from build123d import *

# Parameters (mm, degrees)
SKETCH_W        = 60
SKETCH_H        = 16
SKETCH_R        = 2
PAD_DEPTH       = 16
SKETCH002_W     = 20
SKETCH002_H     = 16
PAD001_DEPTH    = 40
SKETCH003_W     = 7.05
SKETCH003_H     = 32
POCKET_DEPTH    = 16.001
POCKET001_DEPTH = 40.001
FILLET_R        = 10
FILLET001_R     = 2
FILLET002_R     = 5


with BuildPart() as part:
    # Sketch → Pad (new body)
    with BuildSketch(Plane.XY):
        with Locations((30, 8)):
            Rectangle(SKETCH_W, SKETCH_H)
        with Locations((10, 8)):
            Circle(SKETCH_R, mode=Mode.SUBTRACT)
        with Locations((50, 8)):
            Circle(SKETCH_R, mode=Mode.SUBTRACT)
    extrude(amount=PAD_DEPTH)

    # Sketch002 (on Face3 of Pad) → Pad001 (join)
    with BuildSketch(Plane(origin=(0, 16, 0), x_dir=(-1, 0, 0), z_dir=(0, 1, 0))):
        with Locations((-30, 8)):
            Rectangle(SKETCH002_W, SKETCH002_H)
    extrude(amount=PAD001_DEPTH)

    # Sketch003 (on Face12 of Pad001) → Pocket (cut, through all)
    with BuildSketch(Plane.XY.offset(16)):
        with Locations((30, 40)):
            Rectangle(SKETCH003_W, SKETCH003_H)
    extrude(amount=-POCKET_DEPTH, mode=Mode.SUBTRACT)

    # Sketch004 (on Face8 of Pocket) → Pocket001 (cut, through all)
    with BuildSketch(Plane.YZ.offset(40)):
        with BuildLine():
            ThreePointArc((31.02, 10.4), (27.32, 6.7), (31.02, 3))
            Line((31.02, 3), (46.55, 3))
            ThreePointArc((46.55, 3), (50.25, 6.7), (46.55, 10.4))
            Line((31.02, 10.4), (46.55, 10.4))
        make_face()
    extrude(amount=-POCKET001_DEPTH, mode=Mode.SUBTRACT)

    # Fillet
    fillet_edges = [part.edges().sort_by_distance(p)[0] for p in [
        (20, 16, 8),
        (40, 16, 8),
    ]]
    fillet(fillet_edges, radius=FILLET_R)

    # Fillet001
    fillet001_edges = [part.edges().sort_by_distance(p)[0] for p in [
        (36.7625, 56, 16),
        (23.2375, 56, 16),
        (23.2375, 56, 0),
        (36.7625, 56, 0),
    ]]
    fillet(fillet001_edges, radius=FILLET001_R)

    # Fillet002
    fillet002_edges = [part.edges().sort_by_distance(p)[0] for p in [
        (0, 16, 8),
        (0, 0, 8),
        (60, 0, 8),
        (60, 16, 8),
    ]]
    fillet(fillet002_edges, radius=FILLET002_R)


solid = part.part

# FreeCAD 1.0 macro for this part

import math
import FreeCAD as App
import Part
import Sketcher


def edges_at(feature, points):
    """Names of the edges that pass closest to the given points."""
    edges = feature.Shape.Edges
    near = lambda p: min(range(len(edges)), key=lambda i: edges[i].distToShape(Part.Vertex(*p))[0])
    return sorted({f"Edge{near(p) + 1}" for p in points})

doc = App.newDocument("Part")
body = doc.addObject("PartDesign::Body", "Body")

# Sketch on XY plane
sketch1 = body.newObject("Sketcher::SketchObject", "Sketch")
sketch1.AttachmentSupport = (doc.getObject("XY_Plane"), [""])
sketch1.MapMode = "FlatFace"
sketch1.addGeometry(Part.LineSegment(App.Vector(0, 16, 0), App.Vector(0, 0, 0)), False)
sketch1.addGeometry(Part.LineSegment(App.Vector(0, 0, 0), App.Vector(60, 0, 0)), False)
sketch1.addGeometry(Part.LineSegment(App.Vector(60, 0, 0), App.Vector(60, 16, 0)), False)
sketch1.addGeometry(Part.LineSegment(App.Vector(60, 16, 0), App.Vector(0, 16, 0)), False)
sketch1.addGeometry(Part.Circle(App.Vector(10, 8, 0), App.Vector(0, 0, 1), 2), False)
sketch1.addGeometry(Part.Circle(App.Vector(50, 8, 0), App.Vector(0, 0, 1), 2), False)
sketch1.addConstraint(Sketcher.Constraint("Coincident", 0, 2, 1, 1))
sketch1.addConstraint(Sketcher.Constraint("Coincident", 1, 2, 2, 1))
sketch1.addConstraint(Sketcher.Constraint("Coincident", 2, 2, 3, 1))
sketch1.addConstraint(Sketcher.Constraint("Coincident", 3, 2, 0, 1))
sketch1.addConstraint(Sketcher.Constraint("Vertical", 0))
sketch1.addConstraint(Sketcher.Constraint("Horizontal", 1))
sketch1.addConstraint(Sketcher.Constraint("Vertical", 2))
sketch1.addConstraint(Sketcher.Constraint("Horizontal", 3))
sketch1.addConstraint(Sketcher.Constraint("Coincident", 0, 2, -1, 1))
sketch1.addConstraint(Sketcher.Constraint("Equal", 4, 5))
sketch1.addConstraint(Sketcher.Constraint("Horizontal", 4, 3, 5, 3))
sketch1.addConstraint(Sketcher.Constraint("Diameter", 4, 4.0))
sketch1.addConstraint(Sketcher.Constraint("DistanceX", 1, 1, 1, 2, 60.0))
sketch1.addConstraint(Sketcher.Constraint("DistanceY", 0, 2, 0, 1, 16.0))
sketch1.addConstraint(Sketcher.Constraint("DistanceX", -1, 1, 4, 3, 10.0))
sketch1.addConstraint(Sketcher.Constraint("DistanceY", -1, 1, 4, 3, 8.0))
sketch1.addConstraint(Sketcher.Constraint("DistanceX", -1, 1, 5, 3, 50.0))
pad1 = body.newObject("PartDesign::Pad", "Pad")
pad1.Profile = sketch1
pad1.Length = 16

# Sketch on XZ plane
sketch2 = body.newObject("Sketcher::SketchObject", "Sketch001")
sketch2.AttachmentSupport = (doc.getObject("XZ_Plane"), [""])
sketch2.MapMode = "FlatFace"
sketch2.AttachmentOffset = App.Placement(App.Vector(0, 0, -16), App.Rotation())
sketch2.addGeometry(Part.LineSegment(App.Vector(40, 16, 0), App.Vector(40, 0, 0)), False)
sketch2.addGeometry(Part.LineSegment(App.Vector(40, 0, 0), App.Vector(20, 0, 0)), False)
sketch2.addGeometry(Part.LineSegment(App.Vector(20, 0, 0), App.Vector(20, 16, 0)), False)
sketch2.addGeometry(Part.LineSegment(App.Vector(20, 16, 0), App.Vector(40, 16, 0)), False)
sketch2.addConstraint(Sketcher.Constraint("Coincident", 0, 2, 1, 1))
sketch2.addConstraint(Sketcher.Constraint("Coincident", 1, 2, 2, 1))
sketch2.addConstraint(Sketcher.Constraint("Coincident", 2, 2, 3, 1))
sketch2.addConstraint(Sketcher.Constraint("Coincident", 3, 2, 0, 1))
sketch2.addConstraint(Sketcher.Constraint("Vertical", 0))
sketch2.addConstraint(Sketcher.Constraint("Horizontal", 1))
sketch2.addConstraint(Sketcher.Constraint("Vertical", 2))
sketch2.addConstraint(Sketcher.Constraint("Horizontal", 3))
sketch2.addConstraint(Sketcher.Constraint("PointOnObject", 0, 2, -1))
sketch2.addConstraint(Sketcher.Constraint("DistanceX", 1, 2, 1, 1, 20.0))
sketch2.addConstraint(Sketcher.Constraint("DistanceY", 0, 2, 0, 1, 16.0))
sketch2.addConstraint(Sketcher.Constraint("DistanceX", -1, 1, 0, 2, 40.0))
pad2 = body.newObject("PartDesign::Pad", "Pad001")
pad2.Profile = sketch2
pad2.Length = 40
pad2.Reversed = True

# Sketch on XY plane
sketch3 = body.newObject("Sketcher::SketchObject", "Sketch002")
sketch3.AttachmentSupport = (doc.getObject("XY_Plane"), [""])
sketch3.MapMode = "FlatFace"
sketch3.AttachmentOffset = App.Placement(App.Vector(0, 0, 16), App.Rotation())
sketch3.addGeometry(Part.LineSegment(App.Vector(26.475, 56, 0), App.Vector(26.475, 24, 0)), False)
sketch3.addGeometry(Part.LineSegment(App.Vector(26.475, 24, 0), App.Vector(33.525, 24, 0)), False)
sketch3.addGeometry(Part.LineSegment(App.Vector(33.525, 24, 0), App.Vector(33.525, 56, 0)), False)
sketch3.addGeometry(Part.LineSegment(App.Vector(33.525, 56, 0), App.Vector(26.475, 56, 0)), False)
sketch3.addConstraint(Sketcher.Constraint("Coincident", 0, 2, 1, 1))
sketch3.addConstraint(Sketcher.Constraint("Coincident", 1, 2, 2, 1))
sketch3.addConstraint(Sketcher.Constraint("Coincident", 2, 2, 3, 1))
sketch3.addConstraint(Sketcher.Constraint("Coincident", 3, 2, 0, 1))
sketch3.addConstraint(Sketcher.Constraint("Vertical", 0))
sketch3.addConstraint(Sketcher.Constraint("Horizontal", 1))
sketch3.addConstraint(Sketcher.Constraint("Vertical", 2))
sketch3.addConstraint(Sketcher.Constraint("Horizontal", 3))
sketch3.addConstraint(Sketcher.Constraint("DistanceY", 0, 2, 0, 1, 32.0))
sketch3.addConstraint(Sketcher.Constraint("DistanceY", -1, 1, 0, 2, 24.0))
sketch3.addConstraint(Sketcher.Constraint("DistanceX", 1, 1, 1, 2, 7.05))
sketch3.addConstraint(Sketcher.Constraint("DistanceX", -1, 1, 0, 2, 26.475))
pocket1 = body.newObject("PartDesign::Pocket", "Pocket")
pocket1.Profile = sketch3
pocket1.Type = "ThroughAll"

# Sketch on YZ plane
sketch4 = body.newObject("Sketcher::SketchObject", "Sketch003")
sketch4.AttachmentSupport = (doc.getObject("YZ_Plane"), [""])
sketch4.MapMode = "FlatFace"
sketch4.AttachmentOffset = App.Placement(App.Vector(0, 0, 40), App.Rotation())
sketch4.addGeometry(Part.ArcOfCircle(Part.Circle(App.Vector(31.02, 6.7, 0), App.Vector(0, 0, 1), 3.7), math.radians(90), math.radians(270)), False)
sketch4.addGeometry(Part.LineSegment(App.Vector(31.02, 3, 0), App.Vector(46.55, 3, 0)), False)
sketch4.addGeometry(Part.ArcOfCircle(Part.Circle(App.Vector(46.55, 6.7, 0), App.Vector(0, 0, 1), 3.7), math.radians(-90), math.radians(90)), False)
sketch4.addGeometry(Part.LineSegment(App.Vector(46.55, 10.4, 0), App.Vector(31.02, 10.4, 0)), False)
sketch4.addConstraint(Sketcher.Constraint("Tangent", 0, 2, 1, 1))
sketch4.addConstraint(Sketcher.Constraint("Tangent", 1, 2, 2, 1))
sketch4.addConstraint(Sketcher.Constraint("Tangent", 2, 2, 3, 1))
sketch4.addConstraint(Sketcher.Constraint("Tangent", 3, 2, 0, 1))
sketch4.addConstraint(Sketcher.Constraint("Horizontal", 1))
sketch4.addConstraint(Sketcher.Constraint("Horizontal", 3))
sketch4.addConstraint(Sketcher.Constraint("Radius", 0, 3.7))
sketch4.addConstraint(Sketcher.Constraint("DistanceY", -1, 1, 0, 2, 3.0))
sketch4.addConstraint(Sketcher.Constraint("DistanceX", 1, 1, 1, 2, 15.53))
sketch4.addConstraint(Sketcher.Constraint("DistanceX", -1, 1, 0, 3, 31.02))
pocket2 = body.newObject("PartDesign::Pocket", "Pocket001")
pocket2.Profile = sketch4
pocket2.Type = "ThroughAll"
doc.recompute()

fillet = body.newObject("PartDesign::Fillet", "Fillet")
fillet.Base = (pocket2, edges_at(pocket2, [(20, 16, 8), (40, 16, 8)]))
fillet.Radius = 10
doc.recompute()

fillet2 = body.newObject("PartDesign::Fillet", "Fillet001")
fillet2.Base = (fillet, edges_at(fillet, [
    (36.763, 56, 16),
    (23.238, 56, 16),
    (23.238, 56, 0),
    (36.763, 56, 0),
]))
fillet2.Radius = 2
doc.recompute()

fillet3 = body.newObject("PartDesign::Fillet", "Fillet002")
fillet3.Base = (fillet2, edges_at(fillet2, [
    (0, 16, 8),
    (0, 0, 8),
    (60, 0, 8),
    (60, 16, 8),
]))
fillet3.Radius = 5

doc.recompute()
